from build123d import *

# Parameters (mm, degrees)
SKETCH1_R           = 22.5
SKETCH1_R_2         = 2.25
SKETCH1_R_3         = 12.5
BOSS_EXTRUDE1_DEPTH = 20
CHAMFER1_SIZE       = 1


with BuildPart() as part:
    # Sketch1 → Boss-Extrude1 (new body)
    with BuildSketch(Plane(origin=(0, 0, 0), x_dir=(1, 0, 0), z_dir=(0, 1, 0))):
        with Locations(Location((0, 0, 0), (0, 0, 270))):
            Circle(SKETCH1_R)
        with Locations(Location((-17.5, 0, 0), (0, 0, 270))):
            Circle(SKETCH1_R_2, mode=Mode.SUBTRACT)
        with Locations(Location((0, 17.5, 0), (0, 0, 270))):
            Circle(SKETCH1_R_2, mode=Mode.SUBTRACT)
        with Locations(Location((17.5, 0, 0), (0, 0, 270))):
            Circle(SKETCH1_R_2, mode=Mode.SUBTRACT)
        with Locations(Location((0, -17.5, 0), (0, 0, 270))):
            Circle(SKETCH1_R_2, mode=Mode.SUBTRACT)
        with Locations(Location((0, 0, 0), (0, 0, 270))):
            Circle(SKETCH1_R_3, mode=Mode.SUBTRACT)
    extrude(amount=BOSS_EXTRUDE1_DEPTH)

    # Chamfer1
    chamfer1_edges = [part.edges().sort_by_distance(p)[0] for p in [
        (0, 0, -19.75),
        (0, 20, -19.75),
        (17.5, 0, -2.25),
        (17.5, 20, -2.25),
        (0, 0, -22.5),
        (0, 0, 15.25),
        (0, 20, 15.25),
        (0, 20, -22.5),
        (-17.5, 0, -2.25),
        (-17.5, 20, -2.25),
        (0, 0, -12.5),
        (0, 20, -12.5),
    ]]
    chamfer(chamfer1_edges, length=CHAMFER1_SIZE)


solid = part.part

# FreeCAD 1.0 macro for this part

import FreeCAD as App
import Part
import Sketcher
from FreeCAD import Vector


def edges_at(feature, points):
    """Names of the edges that pass closest to the given points."""
    edges = feature.Shape.Edges
    near = lambda p: min(range(len(edges)), key=lambda i: edges[i].distToShape(Part.Vertex(*p))[0])
    return sorted({f"Edge{near(p) + 1}" for p in points})

doc = App.newDocument("Part")
body = doc.addObject("PartDesign::Body", "Body")

# Sketch on XZ plane
sketch1 = doc.addObject("Sketcher::SketchObject", "Sketch")
body.addObject(sketch1)
sketch1.AttachmentSupport = (doc.XZ_Plane, [""])
sketch1.MapMode = "FlatFace"
sketch1.addGeometry(Part.Circle(Vector(0, 0, 0), Vector(0, 0, 1), 22.5), False)
sketch1.addGeometry(Part.Circle(Vector(0, -17.5, 0), Vector(0, 0, 1), 2.2), False)
sketch1.addGeometry(Part.Circle(Vector(-17.5, 0, 0), Vector(0, 0, 1), 2.2), False)
sketch1.addGeometry(Part.Circle(Vector(17.5, 0, 0), Vector(0, 0, 1), 2.2), False)
sketch1.addGeometry(Part.Circle(Vector(0, 0, 0), Vector(0, 0, 1), 12.5), False)
sketch1.addGeometry(Part.Circle(Vector(0, 17.5, 0), Vector(0, 0, 1), 2.2), False)
sketch1.addConstraint(Sketcher.Constraint("Coincident", 0, 3, -1, 1))
sketch1.addConstraint(Sketcher.Constraint("Coincident", 4, 3, -1, 1))
sketch1.addConstraint(Sketcher.Constraint("Equal", 1, 2))
sketch1.addConstraint(Sketcher.Constraint("Equal", 2, 3))
sketch1.addConstraint(Sketcher.Constraint("Equal", 3, 5))
sketch1.addConstraint(Sketcher.Constraint("Symmetric", 2, 3, 3, 3, -1, 1))
sketch1.addConstraint(Sketcher.Constraint("Symmetric", 1, 3, 5, 3, -1, 1))
sketch1.addConstraint(Sketcher.Constraint("PointOnObject", 1, 3, -2))
sketch1.addConstraint(Sketcher.Constraint("PointOnObject", 2, 3, -1))
sketch1.addConstraint(Sketcher.Constraint("Diameter", 0, 45.0))
sketch1.addConstraint(Sketcher.Constraint("Diameter", 4, 25.0))
sketch1.addConstraint(Sketcher.Constraint("Diameter", 1, 4.5))
sketch1.addConstraint(Sketcher.Constraint("DistanceX", 2, 3, 3, 3, 35.0))
sketch1.addConstraint(Sketcher.Constraint("DistanceY", 1, 3, 5, 3, 35.0))
pad1 = doc.addObject("PartDesign::Pad", "Pad")
body.addObject(pad1)
pad1.Profile = sketch1
pad1.Length = 20
pad1.Reversed = True
doc.recompute()

chamfer = doc.addObject("PartDesign::Chamfer", "Chamfer")
body.addObject(chamfer)
chamfer.Base = (pad1, edges_at(pad1, [
    (0, 0, -19.75),
    (0, 20, -19.75),
    (17.5, 0, -2.25),
    (17.5, 20, -2.25),
    (0, 0, -22.5),
    (0, 0, 15.25),
    (0, 20, 15.25),
    (0, 20, -22.5),
    (-17.5, 0, -2.25),
    (-17.5, 20, -2.25),
    (0, 0, -12.5),
    (0, 20, -12.5),
]))
chamfer.Size = 1

doc.recompute()
